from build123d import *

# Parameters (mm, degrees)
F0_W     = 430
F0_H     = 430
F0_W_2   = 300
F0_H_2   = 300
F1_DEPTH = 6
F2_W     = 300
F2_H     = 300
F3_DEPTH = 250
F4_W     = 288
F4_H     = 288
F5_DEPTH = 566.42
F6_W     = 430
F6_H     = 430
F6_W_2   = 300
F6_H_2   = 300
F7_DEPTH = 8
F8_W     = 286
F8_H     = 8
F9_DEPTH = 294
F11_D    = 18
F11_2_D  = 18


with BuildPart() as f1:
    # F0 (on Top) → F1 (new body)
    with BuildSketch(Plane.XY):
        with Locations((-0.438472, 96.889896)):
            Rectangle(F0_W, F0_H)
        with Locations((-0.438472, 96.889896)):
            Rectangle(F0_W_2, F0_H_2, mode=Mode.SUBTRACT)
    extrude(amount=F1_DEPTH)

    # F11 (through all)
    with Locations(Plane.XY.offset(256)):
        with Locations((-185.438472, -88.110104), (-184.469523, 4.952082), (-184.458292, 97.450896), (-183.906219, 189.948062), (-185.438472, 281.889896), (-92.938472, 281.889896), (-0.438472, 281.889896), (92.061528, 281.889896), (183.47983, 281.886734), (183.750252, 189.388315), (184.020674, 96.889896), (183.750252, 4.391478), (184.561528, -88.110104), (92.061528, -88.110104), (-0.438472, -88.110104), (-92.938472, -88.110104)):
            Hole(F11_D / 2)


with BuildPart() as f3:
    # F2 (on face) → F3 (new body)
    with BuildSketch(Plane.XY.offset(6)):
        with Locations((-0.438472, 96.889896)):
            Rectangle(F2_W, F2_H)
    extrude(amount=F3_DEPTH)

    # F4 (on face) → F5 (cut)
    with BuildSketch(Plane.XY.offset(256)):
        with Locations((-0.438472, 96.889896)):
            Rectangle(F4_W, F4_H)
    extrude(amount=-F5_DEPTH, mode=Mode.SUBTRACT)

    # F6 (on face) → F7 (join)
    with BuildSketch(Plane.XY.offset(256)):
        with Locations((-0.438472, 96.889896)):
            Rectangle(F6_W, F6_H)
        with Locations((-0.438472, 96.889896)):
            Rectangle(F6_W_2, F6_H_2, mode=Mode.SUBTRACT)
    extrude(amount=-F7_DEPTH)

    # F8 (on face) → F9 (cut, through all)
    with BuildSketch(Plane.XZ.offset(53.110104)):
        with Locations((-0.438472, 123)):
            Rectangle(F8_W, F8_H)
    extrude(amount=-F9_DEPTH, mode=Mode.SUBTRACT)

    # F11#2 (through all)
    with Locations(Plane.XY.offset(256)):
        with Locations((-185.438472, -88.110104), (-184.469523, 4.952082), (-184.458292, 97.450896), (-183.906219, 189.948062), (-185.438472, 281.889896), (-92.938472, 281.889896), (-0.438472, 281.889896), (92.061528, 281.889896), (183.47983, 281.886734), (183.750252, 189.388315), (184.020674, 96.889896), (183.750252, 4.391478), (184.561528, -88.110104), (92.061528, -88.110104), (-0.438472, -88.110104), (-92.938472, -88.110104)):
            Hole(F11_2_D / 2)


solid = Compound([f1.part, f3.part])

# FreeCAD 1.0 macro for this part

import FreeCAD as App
import Part
import Sketcher
from FreeCAD import Vector


def add_polygon(sketch, points):
    """Adds a closed chain of lines whose ends are joined by coincident constraints."""
    first, n = sketch.GeometryCount, len(points)
    for a, b in zip(points, points[1:] + points[:1]):
        sketch.addGeometry(Part.LineSegment(App.Vector(*a, 0), App.Vector(*b, 0)), False)
    for i in range(n):
        sketch.addConstraint(Sketcher.Constraint("Coincident", first + i, 2, first + (i + 1) % n, 1))

doc = App.newDocument("Part")
body = doc.addObject("PartDesign::Body", "Body")

# Sketch on XY plane
sketch1 = body.newObject("Sketcher::SketchObject", "Sketch")
sketch1.AttachmentSupport = (doc.getObject("XY_Plane"), [""])
sketch1.MapMode = "FlatFace"
add_polygon(sketch1, [(-215.438472, 311.889896), (-215.438472, -118.110104), (214.561528, -118.110104), (214.561528, 311.889896)])  # lines 0-3
add_polygon(sketch1, [(149.561528, -53.110104), (-150.438472, -53.110104), (-150.438472, 246.889896), (149.561528, 246.889896)])  # lines 4-7
sketch1.addConstraint(Sketcher.Constraint("Vertical", 0))
sketch1.addConstraint(Sketcher.Constraint("Horizontal", 1))
sketch1.addConstraint(Sketcher.Constraint("Vertical", 2))
sketch1.addConstraint(Sketcher.Constraint("Horizontal", 3))
sketch1.addConstraint(Sketcher.Constraint("Horizontal", 4))
sketch1.addConstraint(Sketcher.Constraint("Vertical", 5))
sketch1.addConstraint(Sketcher.Constraint("Horizontal", 6))
sketch1.addConstraint(Sketcher.Constraint("Vertical", 7))
sketch1.addConstraint(Sketcher.Constraint("Equal", 3, 0))
sketch1.addConstraint(Sketcher.Constraint("Equal", 6, 5))
sketch1.addConstraint(Sketcher.Constraint("DistanceX", 1, 1, 1, 2, 430.0))
sketch1.addConstraint(Sketcher.Constraint("DistanceX", 4, 2, 4, 1, 300.0))
sketch1.addConstraint(Sketcher.Constraint("DistanceX", 0, 2, 4, 2, 65.0))
sketch1.addConstraint(Sketcher.Constraint("DistanceY", 0, 2, 4, 2, 65.0))
sketch1.addConstraint(Sketcher.Constraint("DistanceX", 0, 2, -1, 1, 215.438472))
sketch1.addConstraint(Sketcher.Constraint("DistanceY", 0, 2, -1, 1, 118.110104))
pad1 = body.newObject("PartDesign::Pad", "Pad")
pad1.Profile = sketch1
pad1.Length = 6

# Sketch on XY plane
sketch2 = body.newObject("Sketcher::SketchObject", "Sketch001")
sketch2.AttachmentSupport = (doc.getObject("XY_Plane"), [""])
sketch2.MapMode = "FlatFace"
sketch2.AttachmentOffset = App.Placement(Vector(0, 0, 256), App.Rotation())
sketch2.addGeometry(Part.Circle(Vector(-185.438472, -88.110104, 0), Vector(0, 0, 1), 9), False)
sketch2.addGeometry(Part.Circle(Vector(-184.469523, 4.952082, 0), Vector(0, 0, 1), 9), False)
sketch2.addGeometry(Part.Circle(Vector(-184.458292, 97.450896, 0), Vector(0, 0, 1), 9), False)
sketch2.addGeometry(Part.Circle(Vector(-183.906219, 189.948062, 0), Vector(0, 0, 1), 9), False)
sketch2.addGeometry(Part.Circle(Vector(-185.438472, 281.889896, 0), Vector(0, 0, 1), 9), False)
sketch2.addGeometry(Part.Circle(Vector(-92.938472, 281.889896, 0), Vector(0, 0, 1), 9), False)
sketch2.addGeometry(Part.Circle(Vector(-0.438472, 281.889896, 0), Vector(0, 0, 1), 9), False)
sketch2.addGeometry(Part.Circle(Vector(92.061528, 281.889896, 0), Vector(0, 0, 1), 9), False)
sketch2.addGeometry(Part.Circle(Vector(183.47983, 281.886734, 0), Vector(0, 0, 1), 9), False)
sketch2.addGeometry(Part.Circle(Vector(183.750252, 189.388315, 0), Vector(0, 0, 1), 9), False)
sketch2.addGeometry(Part.Circle(Vector(184.020674, 96.889896, 0), Vector(0, 0, 1), 9), False)
sketch2.addGeometry(Part.Circle(Vector(183.750252, 4.391478, 0), Vector(0, 0, 1), 9), False)
sketch2.addGeometry(Part.Circle(Vector(184.561528, -88.110104, 0), Vector(0, 0, 1), 9), False)
sketch2.addGeometry(Part.Circle(Vector(92.061528, -88.110104, 0), Vector(0, 0, 1), 9), False)
sketch2.addGeometry(Part.Circle(Vector(-0.438472, -88.110104, 0), Vector(0, 0, 1), 9), False)
sketch2.addGeometry(Part.Circle(Vector(-92.938472, -88.110104, 0), Vector(0, 0, 1), 9), False)
sketch2.addConstraint(Sketcher.Constraint("Equal", 0, 1))
sketch2.addConstraint(Sketcher.Constraint("Equal", 1, 2))
sketch2.addConstraint(Sketcher.Constraint("Equal", 2, 3))
sketch2.addConstraint(Sketcher.Constraint("Equal", 3, 4))
sketch2.addConstraint(Sketcher.Constraint("Equal", 4, 5))
sketch2.addConstraint(Sketcher.Constraint("Equal", 5, 6))
sketch2.addConstraint(Sketcher.Constraint("Equal", 6, 7))
sketch2.addConstraint(Sketcher.Constraint("Equal", 7, 8))
sketch2.addConstraint(Sketcher.Constraint("Equal", 8, 9))
sketch2.addConstraint(Sketcher.Constraint("Equal", 9, 10))
sketch2.addConstraint(Sketcher.Constraint("Equal", 10, 11))
sketch2.addConstraint(Sketcher.Constraint("Equal", 11, 12))
sketch2.addConstraint(Sketcher.Constraint("Equal", 12, 13))
sketch2.addConstraint(Sketcher.Constraint("Equal", 13, 14))
sketch2.addConstraint(Sketcher.Constraint("Equal", 14, 15))
sketch2.addConstraint(Sketcher.Constraint("Horizontal", 4, 3, 5, 3))
sketch2.addConstraint(Sketcher.Constraint("Horizontal", 5, 3, 6, 3))
sketch2.addConstraint(Sketcher.Constraint("Horizontal", 6, 3, 7, 3))
sketch2.addConstraint(Sketcher.Constraint("Horizontal", 0, 3, 12, 3))
sketch2.addConstraint(Sketcher.Constraint("Horizontal", 12, 3, 13, 3))
sketch2.addConstraint(Sketcher.Constraint("Horizontal", 13, 3, 14, 3))
sketch2.addConstraint(Sketcher.Constraint("Horizontal", 14, 3, 15, 3))
sketch2.addConstraint(Sketcher.Constraint("Vertical", 0, 3, 4, 3))
sketch2.addConstraint(Sketcher.Constraint("Vertical", 9, 3, 11, 3))
sketch2.addConstraint(Sketcher.Constraint("Vertical", 7, 3, 13, 3))
sketch2.addConstraint(Sketcher.Constraint("Vertical", 6, 3, 14, 3))
sketch2.addConstraint(Sketcher.Constraint("Vertical", 5, 3, 15, 3))
sketch2.addConstraint(Sketcher.Constraint("Diameter", 0, 18.0))
sketch2.addConstraint(Sketcher.Constraint("DistanceY", 0, 3, 4, 3, 370.0))
sketch2.addConstraint(Sketcher.Constraint("DistanceX", 4, 3, 6, 3, 185.0))
sketch2.addConstraint(Sketcher.Constraint("DistanceX", 5, 3, 7, 3, 185.0))
sketch2.addConstraint(Sketcher.Constraint("DistanceY", 10, 3, 7, 3, 185.0))
sketch2.addConstraint(Sketcher.Constraint("DistanceX", 0, 3, 12, 3, 370.0))
sketch2.addConstraint(Sketcher.Constraint("DistanceX", 4, 3, 5, 3, 92.5))
sketch2.addConstraint(Sketcher.Constraint("DistanceY", 0, 3, 2, 3, 185.561))
sketch2.addConstraint(Sketcher.Constraint("DistanceX", 7, 3, 8, 3, 91.418302))
sketch2.addConstraint(Sketcher.Constraint("DistanceX", 0, 3, -1, 1, 185.438472))
sketch2.addConstraint(Sketcher.Constraint("DistanceX", 2, 3, -1, 1, 184.458292))
sketch2.addConstraint(Sketcher.Constraint("DistanceX", 3, 3, -1, 1, 183.906219))
sketch2.addConstraint(Sketcher.Constraint("DistanceY", -1, 1, 3, 3, 189.948062))
sketch2.addConstraint(Sketcher.Constraint("DistanceX", -1, 1, 9, 3, 183.750252))
sketch2.addConstraint(Sketcher.Constraint("DistanceY", -1, 1, 11, 3, 4.391478))
sketch2.addConstraint(Sketcher.Constraint("DistanceX", 0, 3, 1, 3, 0.968949))
sketch2.addConstraint(Sketcher.Constraint("DistanceY", 1, 3, 3, 3, 184.99598))
sketch2.addConstraint(Sketcher.Constraint("DistanceY", 3, 3, 8, 3, 91.938672))
sketch2.addConstraint(Sketcher.Constraint("DistanceY", 9, 3, 8, 3, 92.498419))
sketch2.addConstraint(Sketcher.Constraint("DistanceY", 9, 3, 7, 3, 92.501581))
sketch2.addConstraint(Sketcher.Constraint("DistanceX", -1, 1, 10, 3, 184.020674))
doc.recompute()
hole = body.newObject("PartDesign::Hole", "Hole")
hole.Profile = sketch2
hole.ThreadType = "None"
hole.Diameter = 18
hole.DepthType = "ThroughAll"
body2 = doc.addObject("PartDesign::Body", "Body001")

# Sketch on XY plane
sketch3 = body2.newObject("Sketcher::SketchObject", "Sketch002")
sketch3.AttachmentSupport = (doc.getObject("XY_Plane001"), [""])
sketch3.MapMode = "FlatFace"
sketch3.AttachmentOffset = App.Placement(Vector(0, 0, 6), App.Rotation())
add_polygon(sketch3, [(-150.438472, 246.889896), (-150.438472, -53.110104), (149.561528, -53.110104), (149.561528, 246.889896)])  # lines 0-3
sketch3.addConstraint(Sketcher.Constraint("Vertical", 0))
sketch3.addConstraint(Sketcher.Constraint("Horizontal", 1))
sketch3.addConstraint(Sketcher.Constraint("Vertical", 2))
sketch3.addConstraint(Sketcher.Constraint("Horizontal", 3))
sketch3.addConstraint(Sketcher.Constraint("Equal", 3, 0))
sketch3.addConstraint(Sketcher.Constraint("DistanceX", 1, 1, 1, 2, 300.0))
sketch3.addConstraint(Sketcher.Constraint("DistanceX", 0, 2, -1, 1, 150.438472))
sketch3.addConstraint(Sketcher.Constraint("DistanceY", 0, 2, -1, 1, 53.110104))
pad2 = body2.newObject("PartDesign::Pad", "Pad001")
pad2.Profile = sketch3
pad2.Length = 250

# Sketch on XY plane
sketch4 = body2.newObject("Sketcher::SketchObject", "Sketch003")
sketch4.AttachmentSupport = (doc.getObject("XY_Plane001"), [""])
sketch4.MapMode = "FlatFace"
sketch4.AttachmentOffset = App.Placement(Vector(0, 0, 256), App.Rotation())
add_polygon(sketch4, [(-144.438472, 240.889896), (-144.438472, -47.110104), (143.561528, -47.110104), (143.561528, 240.889896)])  # lines 0-3
sketch4.addConstraint(Sketcher.Constraint("Vertical", 0))
sketch4.addConstraint(Sketcher.Constraint("Horizontal", 1))
sketch4.addConstraint(Sketcher.Constraint("Vertical", 2))
sketch4.addConstraint(Sketcher.Constraint("Horizontal", 3))
sketch4.addConstraint(Sketcher.Constraint("Equal", 3, 0))
sketch4.addConstraint(Sketcher.Constraint("DistanceX", 1, 1, 1, 2, 288.0))
sketch4.addConstraint(Sketcher.Constraint("DistanceX", 0, 2, -1, 1, 144.438472))
sketch4.addConstraint(Sketcher.Constraint("DistanceY", 0, 2, -1, 1, 47.110104))
pocket1 = body2.newObject("PartDesign::Pocket", "Pocket")
pocket1.Profile = sketch4
pocket1.Length = 566.42

# Sketch on XY plane
sketch5 = body2.newObject("Sketcher::SketchObject", "Sketch004")
sketch5.AttachmentSupport = (doc.getObject("XY_Plane001"), [""])
sketch5.MapMode = "FlatFace"
sketch5.AttachmentOffset = App.Placement(Vector(0, 0, 256), App.Rotation())
add_polygon(sketch5, [(-215.438472, 311.889896), (-215.438472, -118.110104), (214.561528, -118.110104), (214.561528, 311.889896)])  # lines 0-3
add_polygon(sketch5, [(149.561528, -53.110104), (-150.438472, -53.110104), (-150.438472, 246.889896), (149.561528, 246.889896)])  # lines 4-7
sketch5.addConstraint(Sketcher.Constraint("Vertical", 0))
sketch5.addConstraint(Sketcher.Constraint("Horizontal", 1))
sketch5.addConstraint(Sketcher.Constraint("Vertical", 2))
sketch5.addConstraint(Sketcher.Constraint("Horizontal", 3))
sketch5.addConstraint(Sketcher.Constraint("Horizontal", 4))
sketch5.addConstraint(Sketcher.Constraint("Vertical", 5))
sketch5.addConstraint(Sketcher.Constraint("Horizontal", 6))
sketch5.addConstraint(Sketcher.Constraint("Vertical", 7))
sketch5.addConstraint(Sketcher.Constraint("Equal", 3, 0))
sketch5.addConstraint(Sketcher.Constraint("Equal", 6, 5))
sketch5.addConstraint(Sketcher.Constraint("DistanceX", 1, 1, 1, 2, 430.0))
sketch5.addConstraint(Sketcher.Constraint("DistanceX", 4, 2, 4, 1, 300.0))
sketch5.addConstraint(Sketcher.Constraint("DistanceX", 0, 2, 4, 2, 65.0))
sketch5.addConstraint(Sketcher.Constraint("DistanceY", 0, 2, 4, 2, 65.0))
sketch5.addConstraint(Sketcher.Constraint("DistanceX", 0, 2, -1, 1, 215.438472))
sketch5.addConstraint(Sketcher.Constraint("DistanceY", 0, 2, -1, 1, 118.110104))
pad3 = body2.newObject("PartDesign::Pad", "Pad002")
pad3.Profile = sketch5
pad3.Length = 8
pad3.Reversed = True

# Sketch on XZ plane
sketch6 = body2.newObject("Sketcher::SketchObject", "Sketch005")
sketch6.AttachmentSupport = (doc.getObject("XZ_Plane001"), [""])
sketch6.MapMode = "FlatFace"
sketch6.AttachmentOffset = App.Placement(Vector(0, 0, 53.110104), App.Rotation())
add_polygon(sketch6, [(-143.438472, 127), (-143.438472, 119), (142.561528, 119), (142.561528, 127)])  # lines 0-3
sketch6.addConstraint(Sketcher.Constraint("Vertical", 0))
sketch6.addConstraint(Sketcher.Constraint("Horizontal", 1))
sketch6.addConstraint(Sketcher.Constraint("Vertical", 2))
sketch6.addConstraint(Sketcher.Constraint("Horizontal", 3))
sketch6.addConstraint(Sketcher.Constraint("DistanceX", 1, 1, 1, 2, 286.0))
sketch6.addConstraint(Sketcher.Constraint("DistanceY", 0, 2, 0, 1, 8.0))
sketch6.addConstraint(Sketcher.Constraint("DistanceY", -1, 1, 0, 2, 119.0))
sketch6.addConstraint(Sketcher.Constraint("DistanceX", 0, 2, -1, 1, 143.438472))
pocket2 = body2.newObject("PartDesign::Pocket", "Pocket001")
pocket2.Profile = sketch6
pocket2.Length = 294

# Sketch on XY plane
sketch7 = body2.newObject("Sketcher::SketchObject", "Sketch006")
sketch7.AttachmentSupport = (doc.getObject("XY_Plane001"), [""])
sketch7.MapMode = "FlatFace"
sketch7.AttachmentOffset = App.Placement(Vector(0, 0, 256), App.Rotation())
sketch7.addGeometry(Part.Circle(Vector(-185.438472, -88.110104, 0), Vector(0, 0, 1), 9), False)
sketch7.addGeometry(Part.Circle(Vector(-184.469523, 4.952082, 0), Vector(0, 0, 1), 9), False)
sketch7.addGeometry(Part.Circle(Vector(-184.458292, 97.450896, 0), Vector(0, 0, 1), 9), False)
sketch7.addGeometry(Part.Circle(Vector(-183.906219, 189.948062, 0), Vector(0, 0, 1), 9), False)
sketch7.addGeometry(Part.Circle(Vector(-185.438472, 281.889896, 0), Vector(0, 0, 1), 9), False)
sketch7.addGeometry(Part.Circle(Vector(-92.938472, 281.889896, 0), Vector(0, 0, 1), 9), False)
sketch7.addGeometry(Part.Circle(Vector(-0.438472, 281.889896, 0), Vector(0, 0, 1), 9), False)
sketch7.addGeometry(Part.Circle(Vector(92.061528, 281.889896, 0), Vector(0, 0, 1), 9), False)
sketch7.addGeometry(Part.Circle(Vector(183.47983, 281.886734, 0), Vector(0, 0, 1), 9), False)
sketch7.addGeometry(Part.Circle(Vector(183.750252, 189.388315, 0), Vector(0, 0, 1), 9), False)
sketch7.addGeometry(Part.Circle(Vector(184.020674, 96.889896, 0), Vector(0, 0, 1), 9), False)
sketch7.addGeometry(Part.Circle(Vector(183.750252, 4.391478, 0), Vector(0, 0, 1), 9), False)
sketch7.addGeometry(Part.Circle(Vector(184.561528, -88.110104, 0), Vector(0, 0, 1), 9), False)
sketch7.addGeometry(Part.Circle(Vector(92.061528, -88.110104, 0), Vector(0, 0, 1), 9), False)
sketch7.addGeometry(Part.Circle(Vector(-0.438472, -88.110104, 0), Vector(0, 0, 1), 9), False)
sketch7.addGeometry(Part.Circle(Vector(-92.938472, -88.110104, 0), Vector(0, 0, 1), 9), False)
sketch7.addConstraint(Sketcher.Constraint("Equal", 0, 1))
sketch7.addConstraint(Sketcher.Constraint("Equal", 1, 2))
sketch7.addConstraint(Sketcher.Constraint("Equal", 2, 3))
sketch7.addConstraint(Sketcher.Constraint("Equal", 3, 4))
sketch7.addConstraint(Sketcher.Constraint("Equal", 4, 5))
sketch7.addConstraint(Sketcher.Constraint("Equal", 5, 6))
sketch7.addConstraint(Sketcher.Constraint("Equal", 6, 7))
sketch7.addConstraint(Sketcher.Constraint("Equal", 7, 8))
sketch7.addConstraint(Sketcher.Constraint("Equal", 8, 9))
sketch7.addConstraint(Sketcher.Constraint("Equal", 9, 10))
sketch7.addConstraint(Sketcher.Constraint("Equal", 10, 11))
sketch7.addConstraint(Sketcher.Constraint("Equal", 11, 12))
sketch7.addConstraint(Sketcher.Constraint("Equal", 12, 13))
sketch7.addConstraint(Sketcher.Constraint("Equal", 13, 14))
sketch7.addConstraint(Sketcher.Constraint("Equal", 14, 15))
sketch7.addConstraint(Sketcher.Constraint("Horizontal", 4, 3, 5, 3))
sketch7.addConstraint(Sketcher.Constraint("Horizontal", 5, 3, 6, 3))
sketch7.addConstraint(Sketcher.Constraint("Horizontal", 6, 3, 7, 3))
sketch7.addConstraint(Sketcher.Constraint("Horizontal", 0, 3, 12, 3))
sketch7.addConstraint(Sketcher.Constraint("Horizontal", 12, 3, 13, 3))
sketch7.addConstraint(Sketcher.Constraint("Horizontal", 13, 3, 14, 3))
sketch7.addConstraint(Sketcher.Constraint("Horizontal", 14, 3, 15, 3))
sketch7.addConstraint(Sketcher.Constraint("Vertical", 0, 3, 4, 3))
sketch7.addConstraint(Sketcher.Constraint("Vertical", 9, 3, 11, 3))
sketch7.addConstraint(Sketcher.Constraint("Vertical", 7, 3, 13, 3))
sketch7.addConstraint(Sketcher.Constraint("Vertical", 6, 3, 14, 3))
sketch7.addConstraint(Sketcher.Constraint("Vertical", 5, 3, 15, 3))
sketch7.addConstraint(Sketcher.Constraint("Diameter", 0, 18.0))
sketch7.addConstraint(Sketcher.Constraint("DistanceY", 0, 3, 4, 3, 370.0))
sketch7.addConstraint(Sketcher.Constraint("DistanceX", 4, 3, 6, 3, 185.0))
sketch7.addConstraint(Sketcher.Constraint("DistanceX", 5, 3, 7, 3, 185.0))
sketch7.addConstraint(Sketcher.Constraint("DistanceY", 10, 3, 7, 3, 185.0))
sketch7.addConstraint(Sketcher.Constraint("DistanceX", 0, 3, 12, 3, 370.0))
sketch7.addConstraint(Sketcher.Constraint("DistanceX", 4, 3, 5, 3, 92.5))
sketch7.addConstraint(Sketcher.Constraint("DistanceY", 0, 3, 2, 3, 185.561))
sketch7.addConstraint(Sketcher.Constraint("DistanceX", 7, 3, 8, 3, 91.418302))
sketch7.addConstraint(Sketcher.Constraint("DistanceX", 0, 3, -1, 1, 185.438472))
sketch7.addConstraint(Sketcher.Constraint("DistanceX", 2, 3, -1, 1, 184.458292))
sketch7.addConstraint(Sketcher.Constraint("DistanceX", 3, 3, -1, 1, 183.906219))
sketch7.addConstraint(Sketcher.Constraint("DistanceY", -1, 1, 3, 3, 189.948062))
sketch7.addConstraint(Sketcher.Constraint("DistanceX", -1, 1, 9, 3, 183.750252))
sketch7.addConstraint(Sketcher.Constraint("DistanceY", -1, 1, 11, 3, 4.391478))
sketch7.addConstraint(Sketcher.Constraint("DistanceX", 0, 3, 1, 3, 0.968949))
sketch7.addConstraint(Sketcher.Constraint("DistanceY", 1, 3, 3, 3, 184.99598))
sketch7.addConstraint(Sketcher.Constraint("DistanceY", 3, 3, 8, 3, 91.938672))
sketch7.addConstraint(Sketcher.Constraint("DistanceY", 9, 3, 8, 3, 92.498419))
sketch7.addConstraint(Sketcher.Constraint("DistanceY", 9, 3, 7, 3, 92.501581))
sketch7.addConstraint(Sketcher.Constraint("DistanceX", -1, 1, 10, 3, 184.020674))
doc.recompute()
hole2 = body2.newObject("PartDesign::Hole", "Hole001")
hole2.Profile = sketch7
hole2.ThreadType = "None"
hole2.Diameter = 18
hole2.DepthType = "ThroughAll"

doc.recompute()
